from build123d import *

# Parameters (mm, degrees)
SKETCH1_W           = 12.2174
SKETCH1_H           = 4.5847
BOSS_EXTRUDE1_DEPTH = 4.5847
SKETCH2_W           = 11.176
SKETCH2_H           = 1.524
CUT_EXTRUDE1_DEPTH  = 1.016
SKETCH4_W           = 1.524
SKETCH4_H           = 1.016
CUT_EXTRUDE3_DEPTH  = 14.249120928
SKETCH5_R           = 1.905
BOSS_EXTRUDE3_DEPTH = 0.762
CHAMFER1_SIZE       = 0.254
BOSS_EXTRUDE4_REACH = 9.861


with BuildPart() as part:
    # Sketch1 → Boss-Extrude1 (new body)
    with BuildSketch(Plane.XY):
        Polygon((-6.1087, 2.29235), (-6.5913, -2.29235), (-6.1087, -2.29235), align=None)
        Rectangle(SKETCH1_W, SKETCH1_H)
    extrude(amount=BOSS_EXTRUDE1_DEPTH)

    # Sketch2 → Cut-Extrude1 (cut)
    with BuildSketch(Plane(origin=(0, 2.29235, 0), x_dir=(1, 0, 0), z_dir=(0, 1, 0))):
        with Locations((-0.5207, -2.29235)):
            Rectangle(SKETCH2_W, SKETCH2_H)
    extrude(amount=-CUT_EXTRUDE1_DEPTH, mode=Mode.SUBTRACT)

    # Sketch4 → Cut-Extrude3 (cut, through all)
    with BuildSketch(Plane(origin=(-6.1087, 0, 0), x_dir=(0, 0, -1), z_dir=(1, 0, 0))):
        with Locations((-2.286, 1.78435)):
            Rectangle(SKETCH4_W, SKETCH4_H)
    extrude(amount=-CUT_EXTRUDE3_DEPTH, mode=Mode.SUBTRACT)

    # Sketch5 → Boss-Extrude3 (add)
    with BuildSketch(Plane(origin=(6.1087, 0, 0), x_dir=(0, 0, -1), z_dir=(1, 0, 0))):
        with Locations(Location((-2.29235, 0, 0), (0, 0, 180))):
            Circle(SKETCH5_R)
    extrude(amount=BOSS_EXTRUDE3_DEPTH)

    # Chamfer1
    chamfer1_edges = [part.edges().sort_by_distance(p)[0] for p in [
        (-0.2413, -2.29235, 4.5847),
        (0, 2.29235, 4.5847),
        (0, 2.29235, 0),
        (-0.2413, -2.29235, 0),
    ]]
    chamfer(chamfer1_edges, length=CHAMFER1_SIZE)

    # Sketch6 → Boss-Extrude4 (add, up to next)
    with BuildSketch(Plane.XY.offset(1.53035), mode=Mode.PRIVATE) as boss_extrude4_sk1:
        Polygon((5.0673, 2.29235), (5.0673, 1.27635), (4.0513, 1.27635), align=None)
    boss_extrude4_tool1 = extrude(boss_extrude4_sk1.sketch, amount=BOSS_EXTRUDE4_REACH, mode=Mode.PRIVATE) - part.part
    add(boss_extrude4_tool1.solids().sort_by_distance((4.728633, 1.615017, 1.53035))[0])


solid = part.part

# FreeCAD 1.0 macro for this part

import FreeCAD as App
import Part
import Sketcher
Q = App.Units.Quantity


def edges_at(feature, points):
    """Names of the edges that pass closest to the given points."""
    edges = feature.Shape.Edges
    near = lambda p: min(range(len(edges)), key=lambda i: edges[i].distToShape(Part.Vertex(*p))[0])
    return sorted({f"Edge{near(p) + 1}" for p in points})

doc = App.newDocument("Part")
body = doc.addObject("PartDesign::Body", "Body")

# Sketch on XY plane
sketch1 = body.newObject("Sketcher::SketchObject", "Sketch")
sketch1.AttachmentSupport = (doc.getObject("XY_Plane"), [""])
sketch1.MapMode = "FlatFace"
sketch1.addGeometry([
    Part.LineSegment(App.Vector(-6.1, 2.3, 0), App.Vector(-6.6, -2.3, 0)),
    Part.LineSegment(App.Vector(-6.6, -2.3, 0), App.Vector(6.1, -2.3, 0)),
    Part.LineSegment(App.Vector(6.1, -2.3, 0), App.Vector(6.1, 2.3, 0)),
    Part.LineSegment(App.Vector(6.1, 2.3, 0), App.Vector(-6.1, 2.3, 0)),
], False)
sketch1.addConstraint([
    Sketcher.Constraint("Coincident", 0, 2, 1, 1),
    Sketcher.Constraint("Coincident", 1, 2, 2, 1),
    Sketcher.Constraint("Coincident", 2, 2, 3, 1),
    Sketcher.Constraint("Coincident", 3, 2, 0, 1),
    Sketcher.Constraint("Horizontal", 1),
    Sketcher.Constraint("Vertical", 2),
    Sketcher.Constraint("Horizontal", 3),
    Sketcher.Constraint("Symmetric", 1, 2, 3, 2, -1, 1),
    Sketcher.Constraint("DistanceX", 1, 1, 1, 2, Q("0.5 in")),
    Sketcher.Constraint("DistanceX", 3, 2, 3, 1, Q("0.481 in")),
    Sketcher.Constraint("DistanceY", 2, 1, 2, 2, Q("0.1805 in")),
])
pad1 = body.newObject("PartDesign::Pad", "Pad")
pad1.Profile = sketch1
pad1.Length = Q("0.1805 in")

# Sketch on XZ plane
sketch2 = body.newObject("Sketcher::SketchObject", "Sketch001")
sketch2.AttachmentSupport = (doc.getObject("XZ_Plane"), [""])
sketch2.MapMode = "FlatFace"
sketch2.AttachmentOffset = App.Placement(App.Vector(0, 0, -2.29235), App.Rotation())
sketch2.addGeometry([
    Part.LineSegment(App.Vector(-6.1, 1.5, 0), App.Vector(-6.1, 3.1, 0)),
    Part.LineSegment(App.Vector(-6.1, 3.1, 0), App.Vector(5.1, 3.1, 0)),
    Part.LineSegment(App.Vector(5.1, 3.1, 0), App.Vector(5.1, 1.5, 0)),
    Part.LineSegment(App.Vector(5.1, 1.5, 0), App.Vector(-6.1, 1.5, 0)),
], False)
sketch2.addConstraint([
    Sketcher.Constraint("Coincident", 0, 2, 1, 1),
    Sketcher.Constraint("Coincident", 1, 2, 2, 1),
    Sketcher.Constraint("Coincident", 2, 2, 3, 1),
    Sketcher.Constraint("Coincident", 3, 2, 0, 1),
    Sketcher.Constraint("Vertical", 0),
    Sketcher.Constraint("Horizontal", 1),
    Sketcher.Constraint("Vertical", 2),
    Sketcher.Constraint("Horizontal", 3),
    Sketcher.Constraint("DistanceX", 1, 1, 1, 2, Q("0.44 in")),
    Sketcher.Constraint("DistanceY", 0, 1, 0, 2, Q("0.06 in")),
    Sketcher.Constraint("DistanceX", 0, 2, -1, 1, Q("0.2405 in")),
    Sketcher.Constraint("DistanceY", -1, 1, 0, 2, 3.05435),
])
pocket1 = body.newObject("PartDesign::Pocket", "Pocket")
pocket1.Profile = sketch2
pocket1.Length = Q("0.04 in")
pocket1.Reversed = True

# Sketch on YZ plane
sketch3 = body.newObject("Sketcher::SketchObject", "Sketch002")
sketch3.AttachmentSupport = (doc.getObject("YZ_Plane"), [""])
sketch3.MapMode = "FlatFace"
sketch3.AttachmentOffset = App.Placement(App.Vector(0, 0, -0.2405 * 25.4), App.Rotation())
sketch3.addGeometry([
    Part.LineSegment(App.Vector(2.3, 3, 0), App.Vector(1.3, 3, 0)),
    Part.LineSegment(App.Vector(1.3, 3, 0), App.Vector(1.3, 1.5, 0)),
    Part.LineSegment(App.Vector(1.3, 1.5, 0), App.Vector(2.3, 1.5, 0)),
    Part.LineSegment(App.Vector(2.3, 1.5, 0), App.Vector(2.3, 3, 0)),
], False)
sketch3.addConstraint([
    Sketcher.Constraint("Coincident", 0, 2, 1, 1),
    Sketcher.Constraint("Coincident", 1, 2, 2, 1),
    Sketcher.Constraint("Coincident", 2, 2, 3, 1),
    Sketcher.Constraint("Coincident", 3, 2, 0, 1),
    Sketcher.Constraint("Horizontal", 0),
    Sketcher.Constraint("Vertical", 1),
    Sketcher.Constraint("Horizontal", 2),
    Sketcher.Constraint("Vertical", 3),
    Sketcher.Constraint("DistanceX", 0, 2, 0, 1, Q("0.04 in")),
    Sketcher.Constraint("DistanceY", 1, 2, 1, 1, Q("0.06 in")),
    Sketcher.Constraint("DistanceY", -1, 1, 0, 2, Q("0.12 in")),
    Sketcher.Constraint("DistanceX", -1, 1, 0, 2, 1.27635),
])
pocket2 = body.newObject("PartDesign::Pocket", "Pocket001")
pocket2.Profile = sketch3
pocket2.Type = "ThroughAll"

# Sketch on YZ plane
sketch4 = body.newObject("Sketcher::SketchObject", "Sketch003")
sketch4.AttachmentSupport = (doc.getObject("YZ_Plane"), [""])
sketch4.MapMode = "FlatFace"
sketch4.AttachmentOffset = App.Placement(App.Vector(0, 0, 0.2405 * 25.4), App.Rotation())
sketch4.addGeometry(Part.Circle(App.Vector(0, 2.3, 0), App.Vector(0, 0, 1), 1.9), False)
sketch4.addConstraint([
    Sketcher.Constraint("PointOnObject", 0, 3, -2),
    Sketcher.Constraint("Diameter", 0, Q("0.15 in")),
    Sketcher.Constraint("DistanceY", -1, 1, 0, 3, 2.29235),
])
pad2 = body.newObject("PartDesign::Pad", "Pad001")
pad2.Profile = sketch4
pad2.Length = Q("0.03 in")
doc.recompute()

chamfer = body.newObject("PartDesign::Chamfer", "Chamfer")
chamfer.Base = (pad2, edges_at(pad2, [
    (-0.241, -2.292, 4.585),
    (0, 2.292, 4.585),
    (0, 2.292, 0),
    (-0.241, -2.292, 0),
]))
chamfer.Size = Q("0.01 in")

# Sketch on XY plane
sketch5 = body.newObject("Sketcher::SketchObject", "Sketch004")
sketch5.AttachmentSupport = (doc.getObject("XY_Plane"), [""])
sketch5.MapMode = "FlatFace"
sketch5.AttachmentOffset = App.Placement(App.Vector(0, 0, 1.53035), App.Rotation())
sketch5.addGeometry([
    Part.LineSegment(App.Vector(5.1, 1.3, 0), App.Vector(5.1, 2.3, 0)),
    Part.LineSegment(App.Vector(5.1, 2.3, 0), App.Vector(4.1, 1.3, 0)),
    Part.LineSegment(App.Vector(4.1, 1.3, 0), App.Vector(5.1, 1.3, 0)),
], False)
sketch5.addConstraint([
    Sketcher.Constraint("Coincident", 0, 2, 1, 1),
    Sketcher.Constraint("Coincident", 1, 2, 2, 1),
    Sketcher.Constraint("Coincident", 2, 2, 0, 1),
    Sketcher.Constraint("Vertical", 0),
    Sketcher.Constraint("Horizontal", 2),
    Sketcher.Constraint("Equal", 2, 0),
    Sketcher.Constraint("DistanceX", 2, 1, 2, 2, Q("0.04 in")),
    Sketcher.Constraint("DistanceX", -1, 1, 0, 2, Q("0.1995 in")),
    Sketcher.Constraint("DistanceY", -1, 1, 0, 2, 2.29235),
])
pad3 = body.newObject("PartDesign::Pad", "Pad002")
pad3.Profile = sketch5
pad3.Type = "UpToFirst"

doc.recompute()
